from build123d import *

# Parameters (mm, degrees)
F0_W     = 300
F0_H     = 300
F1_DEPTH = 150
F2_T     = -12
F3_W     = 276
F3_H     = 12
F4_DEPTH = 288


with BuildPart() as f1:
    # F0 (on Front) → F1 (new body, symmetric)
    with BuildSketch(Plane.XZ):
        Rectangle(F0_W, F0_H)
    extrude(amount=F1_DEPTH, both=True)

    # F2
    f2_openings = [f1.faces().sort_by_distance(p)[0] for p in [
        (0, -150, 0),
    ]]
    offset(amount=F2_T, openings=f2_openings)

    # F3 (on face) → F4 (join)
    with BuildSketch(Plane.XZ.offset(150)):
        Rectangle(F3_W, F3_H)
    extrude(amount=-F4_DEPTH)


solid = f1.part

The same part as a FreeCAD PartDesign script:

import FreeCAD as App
import Part
import Sketcher
from FreeCAD import Vector


def faces_at(feature, points):
    """Names of the faces that lie closest to the given points."""
    faces = feature.Shape.Faces
    near = lambda p: min(range(len(faces)), key=lambda i: faces[i].distToShape(Part.Vertex(*p))[0])
    return sorted({f"Face{near(p) + 1}" for p in points})

doc = App.newDocument("Part")
params = doc.addObject("Spreadsheet::Sheet", "Params")
for row, (alias, value) in enumerate([
    ("sketch1_width", "300 mm"),
    ("pad1_length", "300 mm"),
    ("thickness_wall", "12 mm"),
    ("sketch2_width", "276 mm"),
    ("sketch2_height", "12 mm"),
    ("pad2_length", "288 mm"),
], start=1):
    params.set(f"A{row}", alias)
    params.set(f"B{row}", "=" + value)
    params.setAlias(f"B{row}", alias)

body = doc.addObject("PartDesign::Body", "Body")

# Sketch on XZ plane
sketch1 = doc.addObject("Sketcher::SketchObject", "Sketch")
body.addObject(sketch1)
sketch1.AttachmentSupport = (doc.XZ_Plane, [""])
sketch1.MapMode = "FlatFace"
sketch1.addGeometry([
    Part.LineSegment(Vector(-150, 150, 0), Vector(-150, -150, 0)),
    Part.LineSegment(Vector(-150, -150, 0), Vector(150, -150, 0)),
    Part.LineSegment(Vector(150, -150, 0), Vector(150, 150, 0)),
    Part.LineSegment(Vector(150, 150, 0), Vector(-150, 150, 0)),
], False)
sketch1.addConstraint([
    Sketcher.Constraint("Coincident", 0, 2, 1, 1),
    Sketcher.Constraint("Coincident", 1, 2, 2, 1),
    Sketcher.Constraint("Coincident", 2, 2, 3, 1),
    Sketcher.Constraint("Coincident", 3, 2, 0, 1),
    Sketcher.Constraint("Vertical", 0),
    Sketcher.Constraint("Horizontal", 1),
    Sketcher.Constraint("Vertical", 2),
    Sketcher.Constraint("Horizontal", 3),
    Sketcher.Constraint("Symmetric", 0, 2, 2, 2, -1, 1),
    Sketcher.Constraint("Equal", 3, 0),
    Sketcher.Constraint("DistanceX", 1, 1, 1, 2, 300.0),
])
sketch1.setExpression("Constraints[10]", "Params.sketch1_width")
pad1 = doc.addObject("PartDesign::Pad", "Pad")
body.addObject(pad1)
pad1.Profile = sketch1
pad1.setExpression("Length", "Params.pad1_length")
pad1.Midplane = True
doc.recompute()

thickness = doc.addObject("PartDesign::Thickness", "Thickness")
body.addObject(thickness)
thickness.Base = (pad1, faces_at(pad1, [(0, -150, 0)]))
thickness.setExpression("Value", "Params.thickness_wall")
thickness.Reversed = True
thickness.Join = "Arc"

# Sketch on XZ plane
sketch2 = doc.addObject("Sketcher::SketchObject", "Sketch001")
body.addObject(sketch2)
sketch2.AttachmentSupport = (doc.XZ_Plane, [""])
sketch2.MapMode = "FlatFace"
sketch2.AttachmentOffset = App.Placement(Vector(0, 0, 150), App.Rotation())
sketch2.addGeometry([
    Part.LineSegment(Vector(-138, 6, 0), Vector(-138, -6, 0)),
    Part.LineSegment(Vector(-138, -6, 0), Vector(138, -6, 0)),
    Part.LineSegment(Vector(138, -6, 0), Vector(138, 6, 0)),
    Part.LineSegment(Vector(138, 6, 0), Vector(-138, 6, 0)),
], False)
sketch2.addConstraint([
    Sketcher.Constraint("Coincident", 0, 2, 1, 1),
    Sketcher.Constraint("Coincident", 1, 2, 2, 1),
    Sketcher.Constraint("Coincident", 2, 2, 3, 1),
    Sketcher.Constraint("Coincident", 3, 2, 0, 1),
    Sketcher.Constraint("Vertical", 0),
    Sketcher.Constraint("Horizontal", 1),
    Sketcher.Constraint("Vertical", 2),
    Sketcher.Constraint("Horizontal", 3),
    Sketcher.Constraint("Symmetric", 0, 2, 2, 2, -1, 1),
    Sketcher.Constraint("DistanceX", 1, 1, 1, 2, 276.0),
    Sketcher.Constraint("DistanceY", 0, 2, 0, 1, 12.0),
])
sketch2.setExpression("Constraints[9]", "Params.sketch2_width")
sketch2.setExpression("Constraints[10]", "Params.sketch2_height")
pad2 = doc.addObject("PartDesign::Pad", "Pad001")
body.addObject(pad2)
pad2.Profile = sketch2
pad2.setExpression("Length", "Params.pad2_length")
pad2.Reversed = True

doc.recompute()
